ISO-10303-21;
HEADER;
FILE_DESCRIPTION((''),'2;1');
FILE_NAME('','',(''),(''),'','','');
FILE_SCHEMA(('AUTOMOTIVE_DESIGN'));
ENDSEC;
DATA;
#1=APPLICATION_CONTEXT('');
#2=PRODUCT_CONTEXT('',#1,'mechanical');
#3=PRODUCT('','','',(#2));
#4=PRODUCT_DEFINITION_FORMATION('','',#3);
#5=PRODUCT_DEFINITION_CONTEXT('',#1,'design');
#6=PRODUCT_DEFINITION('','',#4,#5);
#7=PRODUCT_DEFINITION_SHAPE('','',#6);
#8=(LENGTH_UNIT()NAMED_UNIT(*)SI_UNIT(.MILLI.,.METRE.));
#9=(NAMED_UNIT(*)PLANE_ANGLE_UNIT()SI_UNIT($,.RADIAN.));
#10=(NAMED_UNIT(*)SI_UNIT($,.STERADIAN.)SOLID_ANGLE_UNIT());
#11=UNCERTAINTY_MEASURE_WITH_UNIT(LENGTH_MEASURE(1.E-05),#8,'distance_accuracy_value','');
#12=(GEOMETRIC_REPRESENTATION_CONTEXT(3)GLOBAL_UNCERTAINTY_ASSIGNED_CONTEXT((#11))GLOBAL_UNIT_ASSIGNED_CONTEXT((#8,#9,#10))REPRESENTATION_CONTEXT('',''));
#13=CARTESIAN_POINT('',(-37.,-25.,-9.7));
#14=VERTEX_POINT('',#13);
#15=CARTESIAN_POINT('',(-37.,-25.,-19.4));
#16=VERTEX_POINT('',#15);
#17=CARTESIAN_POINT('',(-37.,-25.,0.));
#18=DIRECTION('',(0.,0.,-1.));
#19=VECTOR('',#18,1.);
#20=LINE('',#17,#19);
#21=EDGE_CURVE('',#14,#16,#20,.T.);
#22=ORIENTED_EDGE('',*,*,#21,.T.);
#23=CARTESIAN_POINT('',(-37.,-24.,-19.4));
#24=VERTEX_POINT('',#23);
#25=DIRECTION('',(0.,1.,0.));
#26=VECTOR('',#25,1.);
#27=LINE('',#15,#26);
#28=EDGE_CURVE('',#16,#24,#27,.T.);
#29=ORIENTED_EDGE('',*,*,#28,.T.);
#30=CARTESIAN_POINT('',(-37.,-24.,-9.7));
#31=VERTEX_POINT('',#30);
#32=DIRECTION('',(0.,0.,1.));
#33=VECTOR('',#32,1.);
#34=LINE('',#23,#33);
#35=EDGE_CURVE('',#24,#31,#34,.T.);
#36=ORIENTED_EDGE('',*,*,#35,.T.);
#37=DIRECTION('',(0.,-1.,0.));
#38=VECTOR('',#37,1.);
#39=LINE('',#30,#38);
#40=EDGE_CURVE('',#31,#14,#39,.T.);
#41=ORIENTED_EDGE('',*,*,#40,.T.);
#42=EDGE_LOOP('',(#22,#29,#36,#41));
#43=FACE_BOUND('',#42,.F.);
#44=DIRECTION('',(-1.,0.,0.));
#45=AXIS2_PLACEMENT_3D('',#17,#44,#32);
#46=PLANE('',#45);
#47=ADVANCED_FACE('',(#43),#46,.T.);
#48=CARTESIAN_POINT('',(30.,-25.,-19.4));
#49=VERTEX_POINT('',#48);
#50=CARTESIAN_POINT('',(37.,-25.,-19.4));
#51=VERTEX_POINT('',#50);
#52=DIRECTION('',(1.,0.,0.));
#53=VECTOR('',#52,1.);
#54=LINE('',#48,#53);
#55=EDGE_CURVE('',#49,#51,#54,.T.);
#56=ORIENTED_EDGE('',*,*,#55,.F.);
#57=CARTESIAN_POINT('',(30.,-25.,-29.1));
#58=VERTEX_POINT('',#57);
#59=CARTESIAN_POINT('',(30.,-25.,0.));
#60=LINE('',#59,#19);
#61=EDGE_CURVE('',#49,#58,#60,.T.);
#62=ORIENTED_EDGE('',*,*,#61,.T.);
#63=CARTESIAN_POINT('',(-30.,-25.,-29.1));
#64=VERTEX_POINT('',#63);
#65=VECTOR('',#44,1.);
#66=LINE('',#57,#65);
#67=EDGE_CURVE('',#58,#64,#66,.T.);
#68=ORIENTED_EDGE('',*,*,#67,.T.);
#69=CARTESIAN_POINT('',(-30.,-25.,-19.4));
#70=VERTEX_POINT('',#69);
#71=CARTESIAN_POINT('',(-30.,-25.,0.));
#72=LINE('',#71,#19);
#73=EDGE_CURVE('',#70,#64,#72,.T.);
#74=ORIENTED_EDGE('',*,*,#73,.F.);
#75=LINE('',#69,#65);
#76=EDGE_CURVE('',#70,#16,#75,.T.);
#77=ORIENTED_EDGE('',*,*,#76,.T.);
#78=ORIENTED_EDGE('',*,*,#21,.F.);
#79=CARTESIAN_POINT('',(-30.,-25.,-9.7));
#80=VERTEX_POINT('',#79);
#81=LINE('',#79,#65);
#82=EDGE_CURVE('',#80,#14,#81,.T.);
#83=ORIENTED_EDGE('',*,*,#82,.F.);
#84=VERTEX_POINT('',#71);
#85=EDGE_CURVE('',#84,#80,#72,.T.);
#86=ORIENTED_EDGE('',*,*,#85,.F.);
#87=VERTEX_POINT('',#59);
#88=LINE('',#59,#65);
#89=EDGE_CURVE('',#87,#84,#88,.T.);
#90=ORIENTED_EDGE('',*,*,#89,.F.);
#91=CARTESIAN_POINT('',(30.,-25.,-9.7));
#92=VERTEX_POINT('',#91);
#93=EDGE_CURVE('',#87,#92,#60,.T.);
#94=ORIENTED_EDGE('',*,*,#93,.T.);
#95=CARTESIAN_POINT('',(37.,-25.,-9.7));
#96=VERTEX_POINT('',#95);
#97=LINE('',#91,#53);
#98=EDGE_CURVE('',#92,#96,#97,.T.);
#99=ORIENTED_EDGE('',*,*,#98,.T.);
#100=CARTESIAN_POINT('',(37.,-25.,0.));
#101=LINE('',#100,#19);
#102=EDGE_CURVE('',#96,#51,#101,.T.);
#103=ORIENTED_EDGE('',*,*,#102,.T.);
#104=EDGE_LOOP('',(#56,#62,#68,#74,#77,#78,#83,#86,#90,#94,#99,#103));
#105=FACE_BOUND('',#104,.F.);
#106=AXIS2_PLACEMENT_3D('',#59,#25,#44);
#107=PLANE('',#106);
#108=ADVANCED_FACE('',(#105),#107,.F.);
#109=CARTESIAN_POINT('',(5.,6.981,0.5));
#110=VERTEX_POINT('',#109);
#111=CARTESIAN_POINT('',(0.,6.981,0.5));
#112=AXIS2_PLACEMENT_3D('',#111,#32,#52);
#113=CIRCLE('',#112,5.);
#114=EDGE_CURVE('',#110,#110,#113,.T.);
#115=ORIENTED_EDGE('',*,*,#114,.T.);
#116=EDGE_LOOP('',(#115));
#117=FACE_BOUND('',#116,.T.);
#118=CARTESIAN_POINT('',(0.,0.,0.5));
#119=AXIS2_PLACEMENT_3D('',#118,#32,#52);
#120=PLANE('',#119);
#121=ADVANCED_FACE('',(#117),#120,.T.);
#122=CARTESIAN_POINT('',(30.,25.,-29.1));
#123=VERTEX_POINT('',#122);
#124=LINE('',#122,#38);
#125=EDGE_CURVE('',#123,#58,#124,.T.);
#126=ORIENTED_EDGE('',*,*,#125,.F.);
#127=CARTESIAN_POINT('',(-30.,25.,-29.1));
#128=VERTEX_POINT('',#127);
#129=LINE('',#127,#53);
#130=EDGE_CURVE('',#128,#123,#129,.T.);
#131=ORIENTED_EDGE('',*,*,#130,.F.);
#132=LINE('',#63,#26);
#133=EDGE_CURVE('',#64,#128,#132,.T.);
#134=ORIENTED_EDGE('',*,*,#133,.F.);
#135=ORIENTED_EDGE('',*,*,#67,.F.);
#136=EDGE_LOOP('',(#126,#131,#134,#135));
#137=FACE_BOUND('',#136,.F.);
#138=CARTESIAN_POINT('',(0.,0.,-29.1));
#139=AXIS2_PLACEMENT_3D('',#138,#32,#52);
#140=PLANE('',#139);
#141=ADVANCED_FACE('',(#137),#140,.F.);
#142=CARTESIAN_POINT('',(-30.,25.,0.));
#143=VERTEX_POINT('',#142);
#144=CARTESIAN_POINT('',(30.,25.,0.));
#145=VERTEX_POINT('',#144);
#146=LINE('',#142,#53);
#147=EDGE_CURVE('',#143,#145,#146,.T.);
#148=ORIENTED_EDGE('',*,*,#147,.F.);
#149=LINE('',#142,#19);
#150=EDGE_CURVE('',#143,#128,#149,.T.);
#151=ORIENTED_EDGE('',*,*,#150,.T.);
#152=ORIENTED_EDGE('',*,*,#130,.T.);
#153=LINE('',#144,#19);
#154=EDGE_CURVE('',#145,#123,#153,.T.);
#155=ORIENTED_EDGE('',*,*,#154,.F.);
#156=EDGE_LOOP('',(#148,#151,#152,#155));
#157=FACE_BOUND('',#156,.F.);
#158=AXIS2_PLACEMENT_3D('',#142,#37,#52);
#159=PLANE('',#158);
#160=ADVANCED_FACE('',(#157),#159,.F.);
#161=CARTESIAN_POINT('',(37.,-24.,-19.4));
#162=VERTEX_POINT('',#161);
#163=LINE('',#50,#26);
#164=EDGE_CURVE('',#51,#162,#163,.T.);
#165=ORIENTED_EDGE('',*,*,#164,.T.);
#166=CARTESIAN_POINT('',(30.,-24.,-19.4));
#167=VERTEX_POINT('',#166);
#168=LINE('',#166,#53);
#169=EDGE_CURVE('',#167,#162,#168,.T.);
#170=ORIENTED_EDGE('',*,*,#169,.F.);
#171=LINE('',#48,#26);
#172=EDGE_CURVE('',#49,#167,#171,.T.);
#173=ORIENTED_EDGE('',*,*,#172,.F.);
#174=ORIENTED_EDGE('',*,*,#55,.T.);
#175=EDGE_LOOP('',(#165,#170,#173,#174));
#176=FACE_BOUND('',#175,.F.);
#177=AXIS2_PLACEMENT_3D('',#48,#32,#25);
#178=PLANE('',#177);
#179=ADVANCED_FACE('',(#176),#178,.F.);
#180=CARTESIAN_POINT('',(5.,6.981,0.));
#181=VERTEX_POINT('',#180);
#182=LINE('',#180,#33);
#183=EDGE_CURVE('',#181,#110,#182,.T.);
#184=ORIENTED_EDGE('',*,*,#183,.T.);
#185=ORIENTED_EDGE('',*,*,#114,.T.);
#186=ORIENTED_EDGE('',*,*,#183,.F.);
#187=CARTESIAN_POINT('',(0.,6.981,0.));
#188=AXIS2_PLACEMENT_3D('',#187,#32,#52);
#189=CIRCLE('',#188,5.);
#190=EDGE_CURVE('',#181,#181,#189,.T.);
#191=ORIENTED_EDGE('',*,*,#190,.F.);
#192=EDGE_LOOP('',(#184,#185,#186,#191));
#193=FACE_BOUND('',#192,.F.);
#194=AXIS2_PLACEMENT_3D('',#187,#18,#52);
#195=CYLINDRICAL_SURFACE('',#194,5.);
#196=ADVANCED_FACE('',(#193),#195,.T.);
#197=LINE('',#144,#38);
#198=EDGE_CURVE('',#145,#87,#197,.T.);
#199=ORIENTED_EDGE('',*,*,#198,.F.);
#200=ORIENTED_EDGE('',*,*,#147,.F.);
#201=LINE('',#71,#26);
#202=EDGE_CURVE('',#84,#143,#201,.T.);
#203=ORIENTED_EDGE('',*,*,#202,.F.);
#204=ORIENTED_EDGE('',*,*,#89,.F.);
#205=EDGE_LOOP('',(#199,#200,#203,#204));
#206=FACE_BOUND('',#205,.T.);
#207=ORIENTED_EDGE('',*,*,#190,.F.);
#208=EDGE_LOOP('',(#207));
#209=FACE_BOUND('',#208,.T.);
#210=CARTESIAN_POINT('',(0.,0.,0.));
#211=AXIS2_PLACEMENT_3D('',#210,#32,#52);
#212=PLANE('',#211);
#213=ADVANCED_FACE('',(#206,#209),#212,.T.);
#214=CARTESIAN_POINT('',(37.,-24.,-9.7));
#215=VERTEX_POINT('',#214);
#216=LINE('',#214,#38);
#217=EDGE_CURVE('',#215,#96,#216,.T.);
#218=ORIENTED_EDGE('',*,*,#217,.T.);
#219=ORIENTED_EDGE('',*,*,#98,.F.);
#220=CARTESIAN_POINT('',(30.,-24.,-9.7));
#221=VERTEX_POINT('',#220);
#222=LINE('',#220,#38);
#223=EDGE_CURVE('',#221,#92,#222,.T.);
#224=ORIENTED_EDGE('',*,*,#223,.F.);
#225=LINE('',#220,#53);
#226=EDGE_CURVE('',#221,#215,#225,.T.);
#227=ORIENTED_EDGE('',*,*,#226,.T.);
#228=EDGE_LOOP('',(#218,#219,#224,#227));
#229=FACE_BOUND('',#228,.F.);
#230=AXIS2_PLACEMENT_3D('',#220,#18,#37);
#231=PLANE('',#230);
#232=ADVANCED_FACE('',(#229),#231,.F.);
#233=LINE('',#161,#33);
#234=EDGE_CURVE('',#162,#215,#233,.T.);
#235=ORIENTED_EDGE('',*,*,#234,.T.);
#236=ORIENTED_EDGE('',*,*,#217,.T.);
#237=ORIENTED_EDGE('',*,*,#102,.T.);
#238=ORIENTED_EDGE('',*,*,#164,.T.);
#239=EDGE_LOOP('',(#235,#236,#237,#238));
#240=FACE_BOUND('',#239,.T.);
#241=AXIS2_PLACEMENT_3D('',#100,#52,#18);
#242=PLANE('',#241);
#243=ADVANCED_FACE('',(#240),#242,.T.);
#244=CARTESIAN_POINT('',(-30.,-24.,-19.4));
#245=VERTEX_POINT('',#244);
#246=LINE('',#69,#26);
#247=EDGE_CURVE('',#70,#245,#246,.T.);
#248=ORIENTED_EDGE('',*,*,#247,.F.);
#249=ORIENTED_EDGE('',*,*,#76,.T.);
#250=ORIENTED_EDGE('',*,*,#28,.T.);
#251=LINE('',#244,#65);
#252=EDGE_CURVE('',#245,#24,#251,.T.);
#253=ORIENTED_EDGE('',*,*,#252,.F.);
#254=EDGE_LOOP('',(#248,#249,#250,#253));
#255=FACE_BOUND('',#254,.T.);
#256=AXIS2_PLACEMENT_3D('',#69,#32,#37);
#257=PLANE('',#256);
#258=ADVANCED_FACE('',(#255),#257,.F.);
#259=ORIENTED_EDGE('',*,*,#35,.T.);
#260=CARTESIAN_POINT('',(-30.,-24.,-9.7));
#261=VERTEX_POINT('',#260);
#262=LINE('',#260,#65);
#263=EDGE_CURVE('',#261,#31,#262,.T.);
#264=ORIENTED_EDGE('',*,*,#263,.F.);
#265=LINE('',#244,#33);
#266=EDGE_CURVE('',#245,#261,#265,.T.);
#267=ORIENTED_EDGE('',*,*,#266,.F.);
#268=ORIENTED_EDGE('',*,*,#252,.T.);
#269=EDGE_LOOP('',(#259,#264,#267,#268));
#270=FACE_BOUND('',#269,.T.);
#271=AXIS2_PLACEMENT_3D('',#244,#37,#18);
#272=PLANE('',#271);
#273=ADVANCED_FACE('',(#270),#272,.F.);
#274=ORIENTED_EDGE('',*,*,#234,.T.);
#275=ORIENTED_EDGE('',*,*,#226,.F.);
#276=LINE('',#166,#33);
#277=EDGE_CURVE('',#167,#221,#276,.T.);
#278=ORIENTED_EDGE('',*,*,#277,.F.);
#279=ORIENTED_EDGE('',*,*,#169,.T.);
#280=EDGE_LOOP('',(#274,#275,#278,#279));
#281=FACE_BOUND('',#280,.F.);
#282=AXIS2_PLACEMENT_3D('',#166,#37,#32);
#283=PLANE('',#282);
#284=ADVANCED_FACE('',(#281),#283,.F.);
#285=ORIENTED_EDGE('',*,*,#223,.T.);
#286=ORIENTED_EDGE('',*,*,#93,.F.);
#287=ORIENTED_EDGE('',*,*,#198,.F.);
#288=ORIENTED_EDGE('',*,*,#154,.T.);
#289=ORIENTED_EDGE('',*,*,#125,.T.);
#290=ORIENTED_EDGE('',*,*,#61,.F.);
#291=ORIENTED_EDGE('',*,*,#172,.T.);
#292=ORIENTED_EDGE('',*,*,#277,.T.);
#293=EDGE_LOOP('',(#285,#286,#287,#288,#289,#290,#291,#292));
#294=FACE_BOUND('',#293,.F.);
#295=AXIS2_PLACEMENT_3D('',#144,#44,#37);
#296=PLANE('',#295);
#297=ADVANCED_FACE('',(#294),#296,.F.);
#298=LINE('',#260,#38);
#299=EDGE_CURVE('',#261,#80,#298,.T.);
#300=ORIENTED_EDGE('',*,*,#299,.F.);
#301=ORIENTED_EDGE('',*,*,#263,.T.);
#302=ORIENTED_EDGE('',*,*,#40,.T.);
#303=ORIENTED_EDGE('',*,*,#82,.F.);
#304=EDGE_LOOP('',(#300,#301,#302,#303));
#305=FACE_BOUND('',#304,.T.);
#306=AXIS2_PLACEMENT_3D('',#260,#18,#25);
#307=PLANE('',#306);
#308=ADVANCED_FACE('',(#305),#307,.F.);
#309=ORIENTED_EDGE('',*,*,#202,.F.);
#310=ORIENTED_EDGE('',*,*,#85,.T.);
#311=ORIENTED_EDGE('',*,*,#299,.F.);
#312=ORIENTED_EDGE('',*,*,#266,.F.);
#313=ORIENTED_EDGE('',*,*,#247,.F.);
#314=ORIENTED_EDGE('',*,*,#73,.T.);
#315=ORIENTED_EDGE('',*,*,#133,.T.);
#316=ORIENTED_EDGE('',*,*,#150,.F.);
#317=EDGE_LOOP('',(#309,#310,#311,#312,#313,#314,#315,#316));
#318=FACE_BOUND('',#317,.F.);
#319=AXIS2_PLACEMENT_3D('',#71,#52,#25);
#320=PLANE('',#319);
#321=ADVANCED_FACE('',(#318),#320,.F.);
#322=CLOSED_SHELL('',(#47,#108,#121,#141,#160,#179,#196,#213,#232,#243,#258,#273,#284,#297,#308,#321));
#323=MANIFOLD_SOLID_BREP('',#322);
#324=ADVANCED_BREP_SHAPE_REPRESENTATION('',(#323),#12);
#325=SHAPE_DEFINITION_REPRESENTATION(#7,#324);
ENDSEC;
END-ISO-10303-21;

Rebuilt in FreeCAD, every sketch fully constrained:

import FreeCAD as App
import Part
import Sketcher

V = App.Vector
Q = App.Units.Quantity

doc = App.newDocument("Part")
body = doc.addObject("PartDesign::Body", "Body")

sketch1 = body.newObject("Sketcher::SketchObject", "Sketch")
sketch1.AttachmentSupport = (doc.getObject("XY_Plane"), [""])
sketch1.MapMode = "FlatFace"
sketch1.addGeometry([
    Part.LineSegment(V(-30, -25, 0), V(30, -25, 0)),
    Part.LineSegment(V(30, -25, 0), V(30, 25, 0)),
    Part.LineSegment(V(30, 25, 0), V(-30, 25, 0)),
    Part.LineSegment(V(-30, 25, 0), V(-30, -25, 0)),
], False)
sketch1.addConstraint([
    Sketcher.Constraint("Coincident", 0, 2, 1, 1),
    Sketcher.Constraint("Coincident", 1, 2, 2, 1),
    Sketcher.Constraint("Coincident", 2, 2, 3, 1),
    Sketcher.Constraint("Coincident", 3, 2, 0, 1),
    Sketcher.Constraint("Horizontal", 0),
    Sketcher.Constraint("Vertical", 1),
    Sketcher.Constraint("Horizontal", 2),
    Sketcher.Constraint("Vertical", 3),
    Sketcher.Constraint("Symmetric", 0, 2, 2, 2, -1, 1),
    Sketcher.Constraint("DistanceX", 0, 1, 0, 2, Q("60 mm")),
    Sketcher.Constraint("DistanceY", 1, 1, 1, 2, Q("50 mm")),
])
pad1 = body.newObject("PartDesign::Pad", "Pad")
pad1.Profile = sketch1
pad1.Length = 29.1
pad1.Reversed = True

sketch2 = body.newObject("Sketcher::SketchObject", "Sketch001")
sketch2.AttachmentSupport = (doc.getObject("YZ_Plane"), [""])
sketch2.MapMode = "FlatFace"
sketch2.AttachmentOffset = App.Placement(V(0, 0, 30), App.Rotation())
sketch2.addGeometry([
    Part.LineSegment(V(-24, -9.7, 0), V(-25, -9.7, 0)),
    Part.LineSegment(V(-25, -9.7, 0), V(-25, -19.4, 0)),
    Part.LineSegment(V(-25, -19.4, 0), V(-24, -19.4, 0)),
    Part.LineSegment(V(-24, -19.4, 0), V(-24, -9.7, 0)),
], False)
sketch2.addConstraint([
    Sketcher.Constraint("Coincident", 0, 2, 1, 1),
    Sketcher.Constraint("Coincident", 1, 2, 2, 1),
    Sketcher.Constraint("Coincident", 2, 2, 3, 1),
    Sketcher.Constraint("Coincident", 3, 2, 0, 1),
    Sketcher.Constraint("Horizontal", 0),
    Sketcher.Constraint("Vertical", 1),
    Sketcher.Constraint("Horizontal", 2),
    Sketcher.Constraint("Vertical", 3),
    Sketcher.Constraint("DistanceX", 0, 2, 0, 1, Q("1 mm")),
    Sketcher.Constraint("DistanceY", 1, 2, 1, 1, Q("9.7 mm")),
    Sketcher.Constraint("DistanceX", 0, 2, -1, 1, Q("25 mm")),
    Sketcher.Constraint("DistanceY", 0, 2, -1, 1, Q("9.7 mm")),
])
pad2 = body.newObject("PartDesign::Pad", "Pad001")
pad2.Profile = sketch2
pad2.Length = 7
doc.recompute()

mirrored = body.newObject("PartDesign::Mirrored", "Mirrored")
mirrored.Originals = [pad2]
mirrored.MirrorPlane = (doc.getObject("YZ_Plane"), [""])
body.Tip = mirrored

sketch3 = body.newObject("Sketcher::SketchObject", "Sketch002")
sketch3.AttachmentSupport = (doc.getObject("XY_Plane"), [""])
sketch3.MapMode = "FlatFace"
sketch3.addGeometry(Part.Circle(V(0, 7, 0), V(0, 0, 1), 5), False)
sketch3.addConstraint([
    Sketcher.Constraint("PointOnObject", 0, 3, -2),
    Sketcher.Constraint("Diameter", 0, Q("10 mm")),
    Sketcher.Constraint("DistanceY", -1, 1, 0, 3, Q("6.981 mm")),
])
pad3 = body.newObject("PartDesign::Pad", "Pad002")
pad3.Profile = sketch3
pad3.Length = 0.5

doc.recompute()
